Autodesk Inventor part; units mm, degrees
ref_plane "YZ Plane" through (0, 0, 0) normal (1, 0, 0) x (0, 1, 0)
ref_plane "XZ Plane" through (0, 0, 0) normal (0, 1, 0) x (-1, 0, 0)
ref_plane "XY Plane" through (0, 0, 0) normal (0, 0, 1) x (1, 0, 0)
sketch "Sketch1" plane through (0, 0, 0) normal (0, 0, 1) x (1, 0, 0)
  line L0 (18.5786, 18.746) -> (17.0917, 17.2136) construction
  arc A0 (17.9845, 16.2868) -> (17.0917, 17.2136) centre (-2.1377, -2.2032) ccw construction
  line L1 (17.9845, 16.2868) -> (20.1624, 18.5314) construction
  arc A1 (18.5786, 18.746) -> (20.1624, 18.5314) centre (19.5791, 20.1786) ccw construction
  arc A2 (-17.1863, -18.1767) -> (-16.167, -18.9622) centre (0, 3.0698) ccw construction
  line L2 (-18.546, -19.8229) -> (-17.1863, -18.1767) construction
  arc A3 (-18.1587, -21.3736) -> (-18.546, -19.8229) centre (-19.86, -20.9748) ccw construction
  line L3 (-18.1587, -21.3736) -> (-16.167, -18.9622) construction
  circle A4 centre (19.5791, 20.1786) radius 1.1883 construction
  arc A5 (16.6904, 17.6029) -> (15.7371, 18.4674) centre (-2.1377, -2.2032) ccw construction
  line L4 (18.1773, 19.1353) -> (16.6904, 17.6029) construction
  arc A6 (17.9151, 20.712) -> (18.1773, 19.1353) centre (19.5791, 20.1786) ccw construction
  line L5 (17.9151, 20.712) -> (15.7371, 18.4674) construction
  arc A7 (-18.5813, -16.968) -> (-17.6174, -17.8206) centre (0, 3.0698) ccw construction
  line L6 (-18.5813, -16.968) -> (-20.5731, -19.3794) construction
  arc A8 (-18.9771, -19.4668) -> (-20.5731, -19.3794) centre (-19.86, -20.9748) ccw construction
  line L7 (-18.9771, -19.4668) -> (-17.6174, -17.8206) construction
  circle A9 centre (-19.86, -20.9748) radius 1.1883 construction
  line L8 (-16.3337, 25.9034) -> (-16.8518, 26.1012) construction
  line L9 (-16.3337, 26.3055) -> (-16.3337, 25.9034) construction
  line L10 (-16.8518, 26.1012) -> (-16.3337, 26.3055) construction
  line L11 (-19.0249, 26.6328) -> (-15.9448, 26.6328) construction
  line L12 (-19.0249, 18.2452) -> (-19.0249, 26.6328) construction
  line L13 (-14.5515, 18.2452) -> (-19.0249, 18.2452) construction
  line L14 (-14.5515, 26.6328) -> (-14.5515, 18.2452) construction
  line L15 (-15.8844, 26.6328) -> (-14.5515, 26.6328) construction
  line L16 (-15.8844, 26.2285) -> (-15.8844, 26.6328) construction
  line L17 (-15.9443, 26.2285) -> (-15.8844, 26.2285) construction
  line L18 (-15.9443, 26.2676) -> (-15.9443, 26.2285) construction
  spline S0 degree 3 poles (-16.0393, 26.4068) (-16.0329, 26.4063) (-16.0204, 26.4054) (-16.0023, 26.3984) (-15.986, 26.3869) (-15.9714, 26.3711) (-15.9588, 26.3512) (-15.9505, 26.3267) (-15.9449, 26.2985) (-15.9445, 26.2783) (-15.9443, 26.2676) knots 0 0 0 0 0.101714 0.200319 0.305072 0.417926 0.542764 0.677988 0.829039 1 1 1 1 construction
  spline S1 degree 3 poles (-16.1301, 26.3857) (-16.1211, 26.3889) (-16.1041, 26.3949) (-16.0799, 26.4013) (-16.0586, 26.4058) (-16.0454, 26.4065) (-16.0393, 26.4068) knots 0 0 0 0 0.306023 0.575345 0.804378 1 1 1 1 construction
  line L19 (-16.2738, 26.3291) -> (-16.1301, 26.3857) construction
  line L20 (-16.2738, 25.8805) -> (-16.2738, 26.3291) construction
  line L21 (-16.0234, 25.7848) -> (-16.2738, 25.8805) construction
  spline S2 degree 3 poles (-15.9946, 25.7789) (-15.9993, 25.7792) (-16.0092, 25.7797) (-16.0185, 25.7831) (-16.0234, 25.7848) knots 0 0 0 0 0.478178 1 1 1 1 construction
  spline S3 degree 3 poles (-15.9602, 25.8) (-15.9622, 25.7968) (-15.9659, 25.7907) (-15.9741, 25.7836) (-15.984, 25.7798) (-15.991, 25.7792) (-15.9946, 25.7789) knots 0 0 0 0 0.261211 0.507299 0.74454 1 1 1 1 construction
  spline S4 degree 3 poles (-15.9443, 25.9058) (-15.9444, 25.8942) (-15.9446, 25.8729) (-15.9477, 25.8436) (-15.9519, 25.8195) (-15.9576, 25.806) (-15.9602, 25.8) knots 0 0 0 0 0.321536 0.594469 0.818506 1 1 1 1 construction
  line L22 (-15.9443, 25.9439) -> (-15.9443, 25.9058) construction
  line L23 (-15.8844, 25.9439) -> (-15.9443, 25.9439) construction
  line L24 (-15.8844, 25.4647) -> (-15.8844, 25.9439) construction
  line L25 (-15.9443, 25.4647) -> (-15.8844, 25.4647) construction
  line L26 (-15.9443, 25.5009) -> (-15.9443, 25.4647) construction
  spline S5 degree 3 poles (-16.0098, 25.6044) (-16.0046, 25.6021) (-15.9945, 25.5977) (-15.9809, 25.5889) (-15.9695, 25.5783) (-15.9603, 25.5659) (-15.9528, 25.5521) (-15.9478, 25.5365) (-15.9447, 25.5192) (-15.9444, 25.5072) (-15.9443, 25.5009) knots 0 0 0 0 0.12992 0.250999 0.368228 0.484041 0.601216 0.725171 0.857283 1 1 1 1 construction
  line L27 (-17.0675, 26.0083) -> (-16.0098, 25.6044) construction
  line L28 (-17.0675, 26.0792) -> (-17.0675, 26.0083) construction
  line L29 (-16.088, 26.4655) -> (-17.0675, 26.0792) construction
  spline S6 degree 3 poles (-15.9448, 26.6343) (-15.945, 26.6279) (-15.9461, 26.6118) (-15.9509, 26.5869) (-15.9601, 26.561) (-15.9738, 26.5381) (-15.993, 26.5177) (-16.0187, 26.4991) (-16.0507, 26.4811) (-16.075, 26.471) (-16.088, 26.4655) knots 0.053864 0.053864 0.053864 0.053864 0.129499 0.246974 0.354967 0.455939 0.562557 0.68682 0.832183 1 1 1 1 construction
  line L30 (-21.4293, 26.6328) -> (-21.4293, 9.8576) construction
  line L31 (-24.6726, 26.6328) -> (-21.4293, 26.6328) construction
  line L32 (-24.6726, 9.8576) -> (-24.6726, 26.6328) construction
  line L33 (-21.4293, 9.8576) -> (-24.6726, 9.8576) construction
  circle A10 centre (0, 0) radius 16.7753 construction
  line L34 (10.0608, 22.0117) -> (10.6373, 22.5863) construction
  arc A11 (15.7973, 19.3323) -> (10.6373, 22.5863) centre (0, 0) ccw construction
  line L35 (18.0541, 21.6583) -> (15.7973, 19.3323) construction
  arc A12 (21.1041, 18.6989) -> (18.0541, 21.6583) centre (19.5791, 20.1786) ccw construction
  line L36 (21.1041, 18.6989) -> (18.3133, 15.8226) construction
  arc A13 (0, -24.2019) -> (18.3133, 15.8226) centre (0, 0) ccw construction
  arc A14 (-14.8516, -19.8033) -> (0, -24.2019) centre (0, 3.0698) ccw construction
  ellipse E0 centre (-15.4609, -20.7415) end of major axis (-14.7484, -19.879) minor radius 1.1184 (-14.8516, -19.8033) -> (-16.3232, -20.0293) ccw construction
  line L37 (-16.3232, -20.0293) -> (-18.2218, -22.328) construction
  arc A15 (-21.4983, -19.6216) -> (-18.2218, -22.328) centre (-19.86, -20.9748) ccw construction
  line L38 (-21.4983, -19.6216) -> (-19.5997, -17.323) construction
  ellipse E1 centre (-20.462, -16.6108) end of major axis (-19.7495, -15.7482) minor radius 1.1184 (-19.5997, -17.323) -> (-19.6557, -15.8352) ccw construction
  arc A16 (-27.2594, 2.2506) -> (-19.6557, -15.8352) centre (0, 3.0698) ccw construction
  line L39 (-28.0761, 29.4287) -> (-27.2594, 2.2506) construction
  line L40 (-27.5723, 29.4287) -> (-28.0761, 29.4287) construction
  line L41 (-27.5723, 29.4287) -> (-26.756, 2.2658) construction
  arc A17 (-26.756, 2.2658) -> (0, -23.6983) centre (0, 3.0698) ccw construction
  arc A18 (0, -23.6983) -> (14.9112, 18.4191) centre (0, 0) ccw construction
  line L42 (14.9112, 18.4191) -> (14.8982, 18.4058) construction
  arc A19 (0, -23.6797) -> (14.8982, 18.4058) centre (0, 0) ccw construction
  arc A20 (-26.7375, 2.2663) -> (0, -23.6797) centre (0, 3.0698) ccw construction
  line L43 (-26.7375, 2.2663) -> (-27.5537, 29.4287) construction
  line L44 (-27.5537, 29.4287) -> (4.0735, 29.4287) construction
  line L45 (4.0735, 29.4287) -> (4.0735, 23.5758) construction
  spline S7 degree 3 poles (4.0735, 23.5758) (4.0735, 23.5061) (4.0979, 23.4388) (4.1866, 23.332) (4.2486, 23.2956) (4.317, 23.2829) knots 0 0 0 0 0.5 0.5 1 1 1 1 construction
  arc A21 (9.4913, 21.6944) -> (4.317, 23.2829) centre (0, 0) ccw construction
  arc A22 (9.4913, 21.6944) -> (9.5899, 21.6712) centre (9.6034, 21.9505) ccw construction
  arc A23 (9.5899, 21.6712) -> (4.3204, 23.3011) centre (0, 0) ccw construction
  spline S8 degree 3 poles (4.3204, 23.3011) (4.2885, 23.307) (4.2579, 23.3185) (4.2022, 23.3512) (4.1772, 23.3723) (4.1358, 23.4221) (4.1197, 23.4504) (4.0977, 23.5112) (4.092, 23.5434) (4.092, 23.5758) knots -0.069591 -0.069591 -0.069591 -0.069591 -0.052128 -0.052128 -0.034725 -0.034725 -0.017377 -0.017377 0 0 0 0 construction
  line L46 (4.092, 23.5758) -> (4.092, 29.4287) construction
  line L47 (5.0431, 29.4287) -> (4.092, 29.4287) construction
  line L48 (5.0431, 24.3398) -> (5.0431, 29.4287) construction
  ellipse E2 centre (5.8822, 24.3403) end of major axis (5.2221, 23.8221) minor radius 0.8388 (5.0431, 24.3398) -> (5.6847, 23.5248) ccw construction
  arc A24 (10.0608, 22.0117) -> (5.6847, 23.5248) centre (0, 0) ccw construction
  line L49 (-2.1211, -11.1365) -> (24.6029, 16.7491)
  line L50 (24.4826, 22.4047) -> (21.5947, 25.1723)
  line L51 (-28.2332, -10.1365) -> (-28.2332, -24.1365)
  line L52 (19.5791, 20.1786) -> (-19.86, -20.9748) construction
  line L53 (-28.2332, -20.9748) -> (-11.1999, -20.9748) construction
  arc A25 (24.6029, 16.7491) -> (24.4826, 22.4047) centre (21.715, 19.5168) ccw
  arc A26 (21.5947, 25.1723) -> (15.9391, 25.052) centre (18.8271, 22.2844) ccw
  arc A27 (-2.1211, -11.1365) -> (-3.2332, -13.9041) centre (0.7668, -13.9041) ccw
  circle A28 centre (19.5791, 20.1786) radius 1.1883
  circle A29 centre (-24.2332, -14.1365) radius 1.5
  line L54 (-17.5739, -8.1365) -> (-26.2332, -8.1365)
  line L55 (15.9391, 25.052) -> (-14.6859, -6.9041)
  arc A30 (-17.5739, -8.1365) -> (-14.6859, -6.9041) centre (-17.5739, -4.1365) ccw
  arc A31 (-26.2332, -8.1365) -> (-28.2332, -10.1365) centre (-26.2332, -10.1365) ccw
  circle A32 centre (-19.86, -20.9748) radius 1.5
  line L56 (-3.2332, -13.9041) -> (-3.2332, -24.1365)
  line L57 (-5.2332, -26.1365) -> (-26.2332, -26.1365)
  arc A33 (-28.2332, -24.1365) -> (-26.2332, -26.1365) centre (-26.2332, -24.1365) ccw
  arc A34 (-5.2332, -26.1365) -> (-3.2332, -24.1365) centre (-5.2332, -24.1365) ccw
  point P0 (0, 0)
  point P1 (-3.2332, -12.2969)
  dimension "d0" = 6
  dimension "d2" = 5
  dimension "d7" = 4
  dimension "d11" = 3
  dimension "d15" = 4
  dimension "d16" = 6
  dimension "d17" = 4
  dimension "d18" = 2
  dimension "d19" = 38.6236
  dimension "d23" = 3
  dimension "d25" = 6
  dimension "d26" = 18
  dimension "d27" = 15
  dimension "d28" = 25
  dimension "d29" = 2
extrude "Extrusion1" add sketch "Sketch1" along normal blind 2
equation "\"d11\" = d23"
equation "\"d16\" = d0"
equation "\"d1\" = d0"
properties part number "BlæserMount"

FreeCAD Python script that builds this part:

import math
import FreeCAD as App
import Part
import Sketcher
from FreeCAD import Vector

doc = App.newDocument("Part")
body = doc.addObject("PartDesign::Body", "Body")

# Sketch on XY plane
sketch1 = doc.addObject("Sketcher::SketchObject", "Sketch")
body.addObject(sketch1)
sketch1.AttachmentSupport = (doc.XY_Plane, [""])
sketch1.MapMode = "FlatFace"
sketch1.addGeometry([
    Part.ArcOfCircle(Part.Circle(Vector(0.8, -13.9, 0), Vector(0, 0, 1), 4), math.radians(136), math.radians(180)),  # 0
    Part.LineSegment(Vector(-2.1, -11.1, 0), Vector(24.6, 16.7, 0)),  # 1
    Part.ArcOfCircle(Part.Circle(Vector(21.7, 19.5, 0), Vector(0, 0, 1), 4), math.radians(-44), math.radians(46)),  # 2
    Part.LineSegment(Vector(24.5, 22.4, 0), Vector(21.6, 25.2, 0)),  # 3
    Part.ArcOfCircle(Part.Circle(Vector(18.8, 22.3, 0), Vector(0, 0, 1), 4), math.radians(46), math.radians(136)),  # 4
    Part.LineSegment(Vector(15.9, 25.1, 0), Vector(-14.7, -6.9, 0)),  # 5
    Part.ArcOfCircle(Part.Circle(Vector(-17.6, -4.1, 0), Vector(0, 0, 1), 4), math.radians(-90), math.radians(-44)),  # 6
    Part.LineSegment(Vector(-17.6, -8.1, 0), Vector(-26.2, -8.1, 0)),  # 7
    Part.ArcOfCircle(Part.Circle(Vector(-26.2, -10.1, 0), Vector(0, 0, 1), 2), math.radians(90), math.radians(180)),  # 8
    Part.LineSegment(Vector(-28.2, -10.1, 0), Vector(-28.2, -24.1, 0)),  # 9
    Part.ArcOfCircle(Part.Circle(Vector(-26.2, -24.1, 0), Vector(0, 0, 1), 2), math.radians(180), math.radians(270)),  # 10
    Part.LineSegment(Vector(-26.2, -26.1, 0), Vector(-5.2, -26.1, 0)),  # 11
    Part.ArcOfCircle(Part.Circle(Vector(-5.2, -24.1, 0), Vector(0, 0, 1), 2), math.radians(-90), math.radians(0)),  # 12
    Part.LineSegment(Vector(-3.2, -24.1, 0), Vector(-3.2, -13.9, 0)),  # 13
    Part.Circle(Vector(-19.9, -21, 0), Vector(0, 0, 1), 1.5),  # 14
    Part.Circle(Vector(-24.2, -14.1, 0), Vector(0, 0, 1), 1.5),  # 15
    Part.Circle(Vector(19.6, 20.2, 0), Vector(0, 0, 1), 1.2),  # 16
], False)
sketch1.addConstraint([
    Sketcher.Constraint("Tangent", 0, 1, 1, 1),
    Sketcher.Constraint("Tangent", 1, 2, 2, 1),
    Sketcher.Constraint("Tangent", 2, 2, 3, 1),
    Sketcher.Constraint("Tangent", 3, 2, 4, 1),
    Sketcher.Constraint("Tangent", 4, 2, 5, 1),
    Sketcher.Constraint("Tangent", 5, 2, 6, 2),
    Sketcher.Constraint("Tangent", 6, 1, 7, 1),
    Sketcher.Constraint("Tangent", 7, 2, 8, 1),
    Sketcher.Constraint("Tangent", 8, 2, 9, 1),
    Sketcher.Constraint("Tangent", 9, 2, 10, 1),
    Sketcher.Constraint("Tangent", 10, 2, 11, 1),
    Sketcher.Constraint("Tangent", 11, 2, 12, 1),
    Sketcher.Constraint("Tangent", 12, 2, 13, 1),
    Sketcher.Constraint("Tangent", 13, 2, 0, 2),
    Sketcher.Constraint("Horizontal", 7),
    Sketcher.Constraint("Vertical", 9),
    Sketcher.Constraint("Horizontal", 11),
    Sketcher.Constraint("Vertical", 13),
    Sketcher.Constraint("Equal", 0, 2),
    Sketcher.Constraint("Equal", 2, 4),
    Sketcher.Constraint("Equal", 4, 6),
    Sketcher.Constraint("Equal", 8, 10),
    Sketcher.Constraint("Equal", 10, 12),
    Sketcher.Constraint("Equal", 14, 15),
    Sketcher.Constraint("Perpendicular", 1, 3),
    Sketcher.Constraint("Perpendicular", 3, 5),
    Sketcher.Constraint("Diameter", 14, 3.0),
    Sketcher.Constraint("Radius", 0, 4.0),
    Sketcher.Constraint("Radius", 8, 2.0),
    Sketcher.Constraint("Distance", 3, 4.0),
    Sketcher.Constraint("DistanceX", 8, 3, 15, 3, 2.0),
    Sketcher.Constraint("DistanceY", 15, 3, 8, 3, 4.0),
    Sketcher.Constraint("DistanceY", 15, 3, 0, 1, 3.0),
    Sketcher.Constraint("DistanceY", 11, 2, 0, 1, 15.0),
    Sketcher.Constraint("DistanceX", 11, 1, 11, 2, 21.0),
    Sketcher.Constraint("Distance", 1, 38.6236),
    Sketcher.Constraint("Diameter", 16, 2.3766),
    Sketcher.Constraint("DistanceX", 14, 3, -1, 1, 19.86),
    Sketcher.Constraint("DistanceX", 4, 2, 16, 3, 3.64),
    Sketcher.Constraint("DistanceX", 7, 2, 7, 1, 8.6593),
    Sketcher.Constraint("DistanceY", 0, 3, -1, 1, 13.904),
    Sketcher.Constraint("DistanceX", -1, 1, 2, 3, 21.715),
    Sketcher.Constraint("DistanceY", 6, 3, 16, 3, 24.315),
    Sketcher.Constraint("DistanceY", 14, 3, -1, 1, 20.9748),
])
pad1 = doc.addObject("PartDesign::Pad", "Pad")
body.addObject(pad1)
pad1.Profile = sketch1
pad1.Length = 2

doc.recompute()
